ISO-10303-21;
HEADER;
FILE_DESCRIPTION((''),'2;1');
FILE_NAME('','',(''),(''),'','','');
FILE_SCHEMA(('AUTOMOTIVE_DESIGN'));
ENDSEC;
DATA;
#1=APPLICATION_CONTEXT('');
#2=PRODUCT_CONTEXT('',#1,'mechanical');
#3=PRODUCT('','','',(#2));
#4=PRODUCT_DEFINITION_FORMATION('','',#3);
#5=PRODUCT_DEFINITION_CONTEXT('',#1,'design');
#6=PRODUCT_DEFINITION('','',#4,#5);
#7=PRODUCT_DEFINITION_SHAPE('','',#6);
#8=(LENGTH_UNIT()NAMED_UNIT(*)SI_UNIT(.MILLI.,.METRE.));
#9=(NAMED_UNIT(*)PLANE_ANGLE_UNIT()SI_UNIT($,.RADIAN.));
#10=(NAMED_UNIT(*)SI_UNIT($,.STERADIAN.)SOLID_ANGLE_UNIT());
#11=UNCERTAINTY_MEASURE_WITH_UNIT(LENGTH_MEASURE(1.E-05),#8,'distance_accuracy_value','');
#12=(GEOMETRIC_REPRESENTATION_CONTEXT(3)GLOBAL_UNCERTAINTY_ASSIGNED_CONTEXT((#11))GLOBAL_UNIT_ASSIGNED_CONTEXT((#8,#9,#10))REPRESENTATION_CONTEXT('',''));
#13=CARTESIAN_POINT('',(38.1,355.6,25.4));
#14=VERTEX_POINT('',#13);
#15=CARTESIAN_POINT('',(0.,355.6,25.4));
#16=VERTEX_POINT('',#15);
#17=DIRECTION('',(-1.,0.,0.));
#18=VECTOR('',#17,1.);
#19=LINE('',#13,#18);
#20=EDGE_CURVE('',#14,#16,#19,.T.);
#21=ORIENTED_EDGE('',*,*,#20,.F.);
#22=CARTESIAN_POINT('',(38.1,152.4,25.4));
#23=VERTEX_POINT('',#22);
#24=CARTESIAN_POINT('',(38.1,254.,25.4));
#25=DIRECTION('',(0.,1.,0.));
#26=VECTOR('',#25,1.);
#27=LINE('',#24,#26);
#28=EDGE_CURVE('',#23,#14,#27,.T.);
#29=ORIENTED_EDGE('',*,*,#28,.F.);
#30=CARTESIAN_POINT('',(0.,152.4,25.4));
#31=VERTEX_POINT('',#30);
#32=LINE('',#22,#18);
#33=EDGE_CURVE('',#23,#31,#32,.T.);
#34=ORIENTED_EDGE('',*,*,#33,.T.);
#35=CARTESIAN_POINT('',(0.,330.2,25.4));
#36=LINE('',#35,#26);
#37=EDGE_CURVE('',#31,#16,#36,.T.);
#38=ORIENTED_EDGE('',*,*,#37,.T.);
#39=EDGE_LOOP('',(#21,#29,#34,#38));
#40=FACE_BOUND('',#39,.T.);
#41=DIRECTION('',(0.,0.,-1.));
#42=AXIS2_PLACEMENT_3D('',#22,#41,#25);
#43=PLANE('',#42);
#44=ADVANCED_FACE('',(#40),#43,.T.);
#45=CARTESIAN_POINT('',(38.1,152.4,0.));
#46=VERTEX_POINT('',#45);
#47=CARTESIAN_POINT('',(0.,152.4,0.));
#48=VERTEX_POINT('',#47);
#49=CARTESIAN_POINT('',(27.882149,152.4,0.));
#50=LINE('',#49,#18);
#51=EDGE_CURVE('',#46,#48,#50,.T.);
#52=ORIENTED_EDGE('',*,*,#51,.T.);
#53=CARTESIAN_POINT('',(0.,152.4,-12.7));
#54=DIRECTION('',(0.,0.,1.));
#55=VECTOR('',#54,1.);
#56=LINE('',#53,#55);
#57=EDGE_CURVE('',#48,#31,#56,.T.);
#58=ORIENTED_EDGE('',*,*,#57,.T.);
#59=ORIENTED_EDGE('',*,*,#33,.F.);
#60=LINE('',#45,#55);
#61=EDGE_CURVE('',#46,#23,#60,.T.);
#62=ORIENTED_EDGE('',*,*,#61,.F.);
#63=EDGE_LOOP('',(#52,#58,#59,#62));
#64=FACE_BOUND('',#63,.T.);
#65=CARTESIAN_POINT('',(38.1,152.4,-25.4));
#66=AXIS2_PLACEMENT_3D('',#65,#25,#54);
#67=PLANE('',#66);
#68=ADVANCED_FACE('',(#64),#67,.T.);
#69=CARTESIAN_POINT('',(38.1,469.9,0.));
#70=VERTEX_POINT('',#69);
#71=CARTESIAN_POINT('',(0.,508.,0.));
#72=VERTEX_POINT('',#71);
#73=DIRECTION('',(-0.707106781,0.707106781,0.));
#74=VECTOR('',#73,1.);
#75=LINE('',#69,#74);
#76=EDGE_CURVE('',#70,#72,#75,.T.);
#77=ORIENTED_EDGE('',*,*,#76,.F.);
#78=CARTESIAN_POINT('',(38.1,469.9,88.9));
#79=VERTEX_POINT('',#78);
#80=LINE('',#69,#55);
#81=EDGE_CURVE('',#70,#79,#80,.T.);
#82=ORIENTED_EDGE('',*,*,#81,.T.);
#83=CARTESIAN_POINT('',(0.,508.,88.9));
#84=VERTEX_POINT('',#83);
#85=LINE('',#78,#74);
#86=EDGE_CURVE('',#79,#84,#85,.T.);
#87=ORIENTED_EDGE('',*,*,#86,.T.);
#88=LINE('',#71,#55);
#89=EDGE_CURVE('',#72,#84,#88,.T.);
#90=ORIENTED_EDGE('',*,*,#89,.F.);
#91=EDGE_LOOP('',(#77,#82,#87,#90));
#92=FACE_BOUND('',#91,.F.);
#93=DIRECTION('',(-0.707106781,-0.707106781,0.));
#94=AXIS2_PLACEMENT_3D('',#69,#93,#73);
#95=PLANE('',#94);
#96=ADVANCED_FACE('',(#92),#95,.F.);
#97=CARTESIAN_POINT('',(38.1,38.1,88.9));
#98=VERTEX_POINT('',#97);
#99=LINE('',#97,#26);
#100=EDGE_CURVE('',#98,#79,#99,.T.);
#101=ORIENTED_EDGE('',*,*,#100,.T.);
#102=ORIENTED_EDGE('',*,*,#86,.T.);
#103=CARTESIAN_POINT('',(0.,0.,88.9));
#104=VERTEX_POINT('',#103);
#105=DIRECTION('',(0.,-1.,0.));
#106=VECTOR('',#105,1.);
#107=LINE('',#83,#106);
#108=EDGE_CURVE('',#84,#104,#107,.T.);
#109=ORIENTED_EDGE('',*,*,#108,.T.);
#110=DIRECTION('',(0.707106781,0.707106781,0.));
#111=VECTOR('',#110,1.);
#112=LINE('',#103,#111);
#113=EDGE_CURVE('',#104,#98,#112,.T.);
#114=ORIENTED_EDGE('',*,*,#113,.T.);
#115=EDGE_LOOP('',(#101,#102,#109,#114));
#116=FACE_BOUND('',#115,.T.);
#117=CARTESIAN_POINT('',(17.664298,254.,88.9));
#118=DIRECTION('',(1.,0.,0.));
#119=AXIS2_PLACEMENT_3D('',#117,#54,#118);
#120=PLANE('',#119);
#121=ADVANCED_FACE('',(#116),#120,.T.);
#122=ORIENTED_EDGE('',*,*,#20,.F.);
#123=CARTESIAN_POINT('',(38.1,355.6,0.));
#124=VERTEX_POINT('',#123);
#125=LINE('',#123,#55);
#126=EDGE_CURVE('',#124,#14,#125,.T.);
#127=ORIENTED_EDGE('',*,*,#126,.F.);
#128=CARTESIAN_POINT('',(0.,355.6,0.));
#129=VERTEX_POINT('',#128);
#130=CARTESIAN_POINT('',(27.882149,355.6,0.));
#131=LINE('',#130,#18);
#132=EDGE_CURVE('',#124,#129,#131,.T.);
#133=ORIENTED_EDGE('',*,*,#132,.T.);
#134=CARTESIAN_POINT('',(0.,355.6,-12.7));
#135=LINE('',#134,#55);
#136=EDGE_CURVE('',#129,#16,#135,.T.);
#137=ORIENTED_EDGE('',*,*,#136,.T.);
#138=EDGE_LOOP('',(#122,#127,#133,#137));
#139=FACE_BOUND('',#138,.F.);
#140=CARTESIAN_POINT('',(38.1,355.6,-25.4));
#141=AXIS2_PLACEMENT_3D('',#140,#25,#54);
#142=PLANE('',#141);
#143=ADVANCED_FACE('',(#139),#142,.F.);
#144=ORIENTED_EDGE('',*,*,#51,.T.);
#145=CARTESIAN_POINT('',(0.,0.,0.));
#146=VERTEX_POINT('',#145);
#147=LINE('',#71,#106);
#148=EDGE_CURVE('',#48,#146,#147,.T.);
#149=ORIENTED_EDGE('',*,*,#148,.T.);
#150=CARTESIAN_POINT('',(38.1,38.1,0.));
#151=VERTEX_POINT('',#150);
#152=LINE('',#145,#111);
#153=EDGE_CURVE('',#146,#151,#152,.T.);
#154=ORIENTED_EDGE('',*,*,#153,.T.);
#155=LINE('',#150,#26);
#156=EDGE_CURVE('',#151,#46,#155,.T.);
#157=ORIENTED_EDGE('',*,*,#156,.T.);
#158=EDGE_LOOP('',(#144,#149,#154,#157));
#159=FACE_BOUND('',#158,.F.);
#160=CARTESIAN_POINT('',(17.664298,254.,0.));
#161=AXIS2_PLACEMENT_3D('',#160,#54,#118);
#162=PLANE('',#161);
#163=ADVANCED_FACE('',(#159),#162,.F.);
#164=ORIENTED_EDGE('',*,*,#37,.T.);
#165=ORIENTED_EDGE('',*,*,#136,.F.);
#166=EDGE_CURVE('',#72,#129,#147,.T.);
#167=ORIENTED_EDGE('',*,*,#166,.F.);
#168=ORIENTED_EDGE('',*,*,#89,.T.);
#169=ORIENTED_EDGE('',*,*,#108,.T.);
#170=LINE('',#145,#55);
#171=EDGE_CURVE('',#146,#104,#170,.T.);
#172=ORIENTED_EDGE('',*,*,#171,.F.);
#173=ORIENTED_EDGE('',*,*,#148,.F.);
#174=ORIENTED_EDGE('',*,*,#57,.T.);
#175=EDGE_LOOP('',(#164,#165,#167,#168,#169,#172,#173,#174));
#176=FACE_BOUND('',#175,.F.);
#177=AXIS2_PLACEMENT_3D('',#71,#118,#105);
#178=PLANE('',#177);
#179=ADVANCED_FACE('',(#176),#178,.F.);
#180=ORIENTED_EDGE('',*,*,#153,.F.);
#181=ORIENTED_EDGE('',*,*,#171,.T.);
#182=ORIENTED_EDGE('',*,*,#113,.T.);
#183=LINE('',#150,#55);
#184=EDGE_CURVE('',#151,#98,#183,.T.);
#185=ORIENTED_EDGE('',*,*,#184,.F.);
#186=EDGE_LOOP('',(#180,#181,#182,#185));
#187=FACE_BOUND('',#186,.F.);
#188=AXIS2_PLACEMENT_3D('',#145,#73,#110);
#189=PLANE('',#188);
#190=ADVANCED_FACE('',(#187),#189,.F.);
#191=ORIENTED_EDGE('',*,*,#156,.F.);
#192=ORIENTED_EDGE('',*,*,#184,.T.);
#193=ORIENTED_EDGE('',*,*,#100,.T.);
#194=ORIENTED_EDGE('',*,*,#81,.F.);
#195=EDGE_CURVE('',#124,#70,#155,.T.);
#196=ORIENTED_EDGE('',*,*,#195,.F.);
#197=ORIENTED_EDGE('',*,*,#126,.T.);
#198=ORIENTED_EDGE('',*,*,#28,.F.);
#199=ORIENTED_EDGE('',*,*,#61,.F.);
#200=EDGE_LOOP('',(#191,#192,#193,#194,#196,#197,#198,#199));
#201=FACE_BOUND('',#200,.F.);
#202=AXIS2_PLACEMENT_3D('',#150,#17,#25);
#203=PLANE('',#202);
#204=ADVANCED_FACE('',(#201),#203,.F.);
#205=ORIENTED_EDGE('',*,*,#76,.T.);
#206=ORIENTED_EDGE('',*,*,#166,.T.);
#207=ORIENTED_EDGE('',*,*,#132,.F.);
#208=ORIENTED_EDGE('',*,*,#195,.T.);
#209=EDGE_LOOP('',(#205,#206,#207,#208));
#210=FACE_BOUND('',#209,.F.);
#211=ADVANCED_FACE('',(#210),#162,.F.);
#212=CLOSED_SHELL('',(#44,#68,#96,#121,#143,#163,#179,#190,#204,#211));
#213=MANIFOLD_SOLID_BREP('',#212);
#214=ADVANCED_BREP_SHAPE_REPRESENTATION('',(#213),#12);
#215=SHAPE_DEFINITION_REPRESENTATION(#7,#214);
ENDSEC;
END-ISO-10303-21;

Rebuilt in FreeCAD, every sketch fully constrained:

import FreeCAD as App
import Part
import Sketcher
from FreeCAD import Vector
Q = App.Units.Quantity


def add_polygon(sketch, points):
    """Adds a closed chain of lines whose ends are joined by coincident constraints."""
    first, n = sketch.GeometryCount, len(points)
    for a, b in zip(points, points[1:] + points[:1]):
        sketch.addGeometry(Part.LineSegment(App.Vector(*a, 0), App.Vector(*b, 0)), False)
    for i in range(n):
        sketch.addConstraint(Sketcher.Constraint("Coincident", first + i, 2, first + (i + 1) % n, 1))

doc = App.newDocument("Part")
params = doc.addObject("Spreadsheet::Sheet", "Params")
for row, (alias, value) in enumerate([
    ("sketch1_height", "20 in"),
    ("sketch1_height2", "17 in"),
    ("pad1_length", "3.5 in"),
    ("sketch2_width", "8 in"),
    ("sketch2_height", "2 in"),
    ("pocket1_length", "72.804831 mm"),
], start=1):
    params.set(f"A{row}", alias)
    params.set(f"B{row}", "=" + value)
    params.setAlias(f"B{row}", alias)

body = doc.addObject("PartDesign::Body", "Body")

sketch1 = doc.addObject("Sketcher::SketchObject", "Sketch")
body.addObject(sketch1)
sketch1.AttachmentSupport = (doc.XY_Plane, [""])
sketch1.MapMode = "FlatFace"
add_polygon(sketch1, [(0, 508), (0, 0), (38.1, 38.1), (38.1, 469.9)])
sketch1.addConstraint(Sketcher.Constraint("Vertical", 0))
sketch1.addConstraint(Sketcher.Constraint("Vertical", 2))
sketch1.addConstraint(Sketcher.Constraint("Coincident", 0, 2, -1, 1))
sketch1.addConstraint(Sketcher.Constraint("Perpendicular", 1, 3))
sketch1.addConstraint(Sketcher.Constraint("Equal", 1, 3))
sketch1.addConstraint(Sketcher.Constraint("DistanceY", 0, 2, 0, 1, Q("20 in")))
sketch1.addConstraint(Sketcher.Constraint("DistanceY", 2, 1, 2, 2, Q("17 in")))
sketch1.setExpression("Constraints[9]", "Params.sketch1_height")
sketch1.setExpression("Constraints[10]", "Params.sketch1_height2")
pad1 = doc.addObject("PartDesign::Pad", "Pad")
body.addObject(pad1)
pad1.Profile = sketch1
pad1.setExpression("Length", "Params.pad1_length")

sketch2 = doc.addObject("Sketcher::SketchObject", "Sketch001")
body.addObject(sketch2)
sketch2.AttachmentSupport = (doc.YZ_Plane, [""])
sketch2.MapMode = "FlatFace"
sketch2.AttachmentOffset = App.Placement(Vector(0, 0, 1.5 * 25.4), App.Rotation())
add_polygon(sketch2, [(152.4, 25.4), (152.4, -25.4), (355.6, -25.4), (355.6, 25.4)])
sketch2.addConstraint(Sketcher.Constraint("Vertical", 0))
sketch2.addConstraint(Sketcher.Constraint("Horizontal", 1))
sketch2.addConstraint(Sketcher.Constraint("Vertical", 2))
sketch2.addConstraint(Sketcher.Constraint("Horizontal", 3))
sketch2.addConstraint(Sketcher.Constraint("DistanceX", 1, 1, 1, 2, Q("8 in")))
sketch2.addConstraint(Sketcher.Constraint("DistanceY", 0, 2, 0, 1, Q("2 in")))
sketch2.addConstraint(Sketcher.Constraint("DistanceX", -1, 1, 0, 2, Q("6 in")))
sketch2.addConstraint(Sketcher.Constraint("DistanceY", 0, 2, -1, 1, Q("1 in")))
sketch2.setExpression("Constraints[8]", "Params.sketch2_width")
sketch2.setExpression("Constraints[9]", "Params.sketch2_height")
pocket1 = doc.addObject("PartDesign::Pocket", "Pocket")
body.addObject(pocket1)
pocket1.Profile = sketch2
pocket1.setExpression("Length", "Params.pocket1_length")

doc.recompute()
